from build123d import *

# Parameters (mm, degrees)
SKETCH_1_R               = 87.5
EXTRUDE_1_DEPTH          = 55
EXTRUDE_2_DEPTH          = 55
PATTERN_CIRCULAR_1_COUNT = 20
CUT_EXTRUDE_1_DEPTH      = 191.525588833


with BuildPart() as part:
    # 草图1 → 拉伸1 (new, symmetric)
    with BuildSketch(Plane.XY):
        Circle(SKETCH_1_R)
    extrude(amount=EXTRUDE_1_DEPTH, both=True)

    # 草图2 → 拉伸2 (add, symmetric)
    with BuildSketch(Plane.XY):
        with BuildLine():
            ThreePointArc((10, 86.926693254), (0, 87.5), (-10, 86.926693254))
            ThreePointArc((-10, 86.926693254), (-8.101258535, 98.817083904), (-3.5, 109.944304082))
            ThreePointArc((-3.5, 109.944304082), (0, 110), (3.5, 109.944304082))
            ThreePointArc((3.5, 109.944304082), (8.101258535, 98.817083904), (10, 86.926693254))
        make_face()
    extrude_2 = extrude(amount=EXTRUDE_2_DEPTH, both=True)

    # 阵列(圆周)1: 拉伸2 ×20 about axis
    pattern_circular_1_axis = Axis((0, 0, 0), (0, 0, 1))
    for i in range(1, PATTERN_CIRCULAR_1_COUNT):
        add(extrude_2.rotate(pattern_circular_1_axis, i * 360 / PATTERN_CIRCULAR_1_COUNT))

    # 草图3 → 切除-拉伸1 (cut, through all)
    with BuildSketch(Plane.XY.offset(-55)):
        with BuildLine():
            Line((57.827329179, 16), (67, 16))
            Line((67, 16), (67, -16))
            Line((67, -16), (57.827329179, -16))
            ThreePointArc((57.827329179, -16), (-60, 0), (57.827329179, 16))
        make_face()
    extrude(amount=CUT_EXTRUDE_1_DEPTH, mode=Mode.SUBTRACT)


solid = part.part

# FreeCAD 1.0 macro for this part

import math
import FreeCAD as App
import Part
import Sketcher
Q = App.Units.Quantity

doc = App.newDocument("Part")
body = doc.addObject("PartDesign::Body", "Body")

# Sketch on XY plane
sketch1 = body.newObject("Sketcher::SketchObject", "Sketch")
sketch1.AttachmentSupport = (doc.getObject("XY_Plane"), [""])
sketch1.MapMode = "FlatFace"
sketch1.addGeometry(Part.Circle(App.Vector(0, 0, 0), App.Vector(0, 0, 1), 88), False)
sketch1.addConstraint(Sketcher.Constraint("Coincident", 0, 3, -1, 1))
sketch1.addConstraint(Sketcher.Constraint("Diameter", 0, Q("175 mm")))
pad1 = body.newObject("PartDesign::Pad", "Pad")
pad1.Profile = sketch1
pad1.Length = 110
pad1.Midplane = True

# Sketch on XY plane
sketch2 = body.newObject("Sketcher::SketchObject", "Sketch001")
sketch2.AttachmentSupport = (doc.getObject("XY_Plane"), [""])
sketch2.MapMode = "FlatFace"
sketch2.addGeometry(Part.ArcOfCircle(Part.Circle(App.Vector(0, 0, 0), App.Vector(0, 0, 1), 88), math.radians(83.44), math.radians(96.56)), False)
sketch2.addGeometry(Part.ArcOfCircle(Part.Circle(App.Vector(-42, 85, 0), App.Vector(0, 0, 1), 52), math.radians(2), math.radians(29)), False)
sketch2.addGeometry(Part.ArcOfCircle(Part.Circle(App.Vector(0, 0, 0), App.Vector(0, 0, 1), 110), math.radians(88.18), math.radians(91.82)), False)
sketch2.addGeometry(Part.ArcOfCircle(Part.Circle(App.Vector(42, 85, 0), App.Vector(0, 0, 1), 52), math.radians(151), math.radians(178)), False)
sketch2.addConstraint(Sketcher.Constraint("Coincident", 0, 1, 1, 1))
sketch2.addConstraint(Sketcher.Constraint("Coincident", 1, 2, 2, 1))
sketch2.addConstraint(Sketcher.Constraint("Coincident", 2, 2, 3, 1))
sketch2.addConstraint(Sketcher.Constraint("Coincident", 3, 2, 0, 2))
sketch2.addConstraint(Sketcher.Constraint("Coincident", 0, 3, -1, 1))
sketch2.addConstraint(Sketcher.Constraint("Coincident", 2, 3, -1, 1))
sketch2.addConstraint(Sketcher.Constraint("Equal", 1, 3))
sketch2.addConstraint(Sketcher.Constraint("Symmetric", 1, 3, 3, 3, -2))
sketch2.addConstraint(Sketcher.Constraint("Radius", 2, Q("110.000001 mm")))
sketch2.addConstraint(Sketcher.Constraint("Radius", 0, Q("87.5 mm")))
sketch2.addConstraint(Sketcher.Constraint("DistanceX", -1, 1, 0, 1, Q("10 mm")))
sketch2.addConstraint(Sketcher.Constraint("DistanceX", 2, 2, 1, 2, Q("7 mm")))
sketch2.addConstraint(Sketcher.Constraint("Radius", 1, Q("51.629598 mm")))
pad2 = body.newObject("PartDesign::Pad", "Pad001")
pad2.Profile = sketch2
pad2.Length = 110
pad2.Midplane = True
doc.recompute()

polarpattern = body.newObject("PartDesign::PolarPattern", "PolarPattern")
polarpattern.Originals = [pad2]
polarpattern.Axis = (doc.getObject("Z_Axis"), [""])
polarpattern.Angle = 360
polarpattern.Occurrences = 20
body.Tip = polarpattern

# Sketch on XY plane
sketch3 = body.newObject("Sketcher::SketchObject", "Sketch002")
sketch3.AttachmentSupport = (doc.getObject("XY_Plane"), [""])
sketch3.MapMode = "FlatFace"
sketch3.AttachmentOffset = App.Placement(App.Vector(0, 0, -55), App.Rotation())
sketch3.addGeometry(Part.LineSegment(App.Vector(67, 16, 0), App.Vector(58, 16, 0)), False)
sketch3.addGeometry(Part.ArcOfCircle(Part.Circle(App.Vector(0, 0, 0), App.Vector(0, 0, 1), 60), math.radians(15), math.radians(345)), False)
sketch3.addGeometry(Part.LineSegment(App.Vector(58, -16, 0), App.Vector(67, -16, 0)), False)
sketch3.addGeometry(Part.LineSegment(App.Vector(67, -16, 0), App.Vector(67, 16, 0)), False)
sketch3.addConstraint(Sketcher.Constraint("Coincident", 0, 2, 1, 1))
sketch3.addConstraint(Sketcher.Constraint("Coincident", 1, 2, 2, 1))
sketch3.addConstraint(Sketcher.Constraint("Coincident", 2, 2, 3, 1))
sketch3.addConstraint(Sketcher.Constraint("Coincident", 3, 2, 0, 1))
sketch3.addConstraint(Sketcher.Constraint("Horizontal", 0))
sketch3.addConstraint(Sketcher.Constraint("Horizontal", 2))
sketch3.addConstraint(Sketcher.Constraint("Vertical", 3))
sketch3.addConstraint(Sketcher.Constraint("Coincident", 1, 3, -1, 1))
sketch3.addConstraint(Sketcher.Constraint("Vertical", 0, 2, 1, 2))
sketch3.addConstraint(Sketcher.Constraint("Radius", 1, Q("60 mm")))
sketch3.addConstraint(Sketcher.Constraint("DistanceY", 3, 1, 3, 2, Q("32 mm")))
sketch3.addConstraint(Sketcher.Constraint("DistanceX", -1, 1, 2, 2, Q("67 mm")))
pocket1 = body.newObject("PartDesign::Pocket", "Pocket")
pocket1.Profile = sketch3
pocket1.Type = "ThroughAll"
pocket1.Reversed = True

doc.recompute()
